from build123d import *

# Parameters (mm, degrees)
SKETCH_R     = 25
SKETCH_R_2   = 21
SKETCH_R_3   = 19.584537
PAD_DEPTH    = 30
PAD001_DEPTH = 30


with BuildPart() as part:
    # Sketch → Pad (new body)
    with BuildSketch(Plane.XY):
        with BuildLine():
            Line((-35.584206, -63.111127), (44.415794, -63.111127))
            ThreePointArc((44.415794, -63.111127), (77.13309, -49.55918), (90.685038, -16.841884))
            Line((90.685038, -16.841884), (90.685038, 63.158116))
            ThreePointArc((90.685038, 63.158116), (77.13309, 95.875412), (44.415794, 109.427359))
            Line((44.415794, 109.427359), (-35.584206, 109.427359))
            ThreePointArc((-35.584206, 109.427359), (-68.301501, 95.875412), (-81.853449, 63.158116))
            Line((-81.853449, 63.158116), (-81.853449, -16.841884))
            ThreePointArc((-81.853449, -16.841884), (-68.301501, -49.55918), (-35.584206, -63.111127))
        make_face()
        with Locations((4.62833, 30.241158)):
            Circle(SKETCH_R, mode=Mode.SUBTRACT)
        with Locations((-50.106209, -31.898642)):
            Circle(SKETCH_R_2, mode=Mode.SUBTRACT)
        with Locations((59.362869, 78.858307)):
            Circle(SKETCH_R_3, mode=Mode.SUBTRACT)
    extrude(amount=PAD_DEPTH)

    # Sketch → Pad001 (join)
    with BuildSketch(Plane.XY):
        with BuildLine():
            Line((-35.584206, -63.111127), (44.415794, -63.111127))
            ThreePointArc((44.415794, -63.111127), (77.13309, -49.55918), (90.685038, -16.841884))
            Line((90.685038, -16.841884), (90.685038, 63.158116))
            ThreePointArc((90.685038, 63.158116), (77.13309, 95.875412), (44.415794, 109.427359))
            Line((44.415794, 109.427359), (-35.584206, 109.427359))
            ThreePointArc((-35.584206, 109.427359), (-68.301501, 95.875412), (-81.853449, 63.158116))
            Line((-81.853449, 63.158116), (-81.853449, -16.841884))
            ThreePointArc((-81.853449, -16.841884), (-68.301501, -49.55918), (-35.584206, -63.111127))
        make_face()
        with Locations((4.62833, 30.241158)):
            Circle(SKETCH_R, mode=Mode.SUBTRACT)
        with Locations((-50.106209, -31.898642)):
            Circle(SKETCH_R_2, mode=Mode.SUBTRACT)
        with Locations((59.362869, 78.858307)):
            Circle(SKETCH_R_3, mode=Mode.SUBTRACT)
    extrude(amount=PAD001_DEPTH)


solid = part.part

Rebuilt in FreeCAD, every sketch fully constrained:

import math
import FreeCAD as App
import Part
import Sketcher

doc = App.newDocument("Part")
body = doc.addObject("PartDesign::Body", "Body")

# Sketch on XY plane
sketch1 = doc.addObject("Sketcher::SketchObject", "Sketch")
body.addObject(sketch1)
sketch1.AttachmentSupport = (doc.XY_Plane, [""])
sketch1.MapMode = "FlatFace"
sketch1.addGeometry([
    Part.LineSegment(App.Vector(-36, -63, 0), App.Vector(44, -63, 0)),  # 0
    Part.ArcOfCircle(Part.Circle(App.Vector(44, -17, 0), App.Vector(0, 0, 1), 46), math.radians(-90), math.radians(0)),  # 1
    Part.LineSegment(App.Vector(91, -17, 0), App.Vector(91, 63, 0)),  # 2
    Part.ArcOfCircle(Part.Circle(App.Vector(44, 63, 0), App.Vector(0, 0, 1), 46), math.radians(0), math.radians(90)),  # 3
    Part.LineSegment(App.Vector(44, 109, 0), App.Vector(-36, 109, 0)),  # 4
    Part.ArcOfCircle(Part.Circle(App.Vector(-36, 63, 0), App.Vector(0, 0, 1), 46), math.radians(90), math.radians(180)),  # 5
    Part.LineSegment(App.Vector(-82, 63, 0), App.Vector(-82, -17, 0)),  # 6
    Part.ArcOfCircle(Part.Circle(App.Vector(-36, -17, 0), App.Vector(0, 0, 1), 46), math.radians(180), math.radians(270)),  # 7
    Part.Circle(App.Vector(-50, -32, 0), App.Vector(0, 0, 1), 21),  # 8
    Part.Circle(App.Vector(5, 30, 0), App.Vector(0, 0, 1), 25),  # 9
    Part.Circle(App.Vector(59, 79, 0), App.Vector(0, 0, 1), 20),  # 10
], False)
sketch1.addConstraint([
    Sketcher.Constraint("Tangent", 0, 2, 1, 1),
    Sketcher.Constraint("Tangent", 1, 2, 2, 1),
    Sketcher.Constraint("Tangent", 2, 2, 3, 1),
    Sketcher.Constraint("Tangent", 3, 2, 4, 1),
    Sketcher.Constraint("Tangent", 4, 2, 5, 1),
    Sketcher.Constraint("Tangent", 5, 2, 6, 1),
    Sketcher.Constraint("Tangent", 6, 2, 7, 1),
    Sketcher.Constraint("Tangent", 7, 2, 0, 1),
    Sketcher.Constraint("Horizontal", 0),
    Sketcher.Constraint("Vertical", 2),
    Sketcher.Constraint("Horizontal", 4),
    Sketcher.Constraint("Vertical", 6),
    Sketcher.Constraint("Equal", 1, 3),
    Sketcher.Constraint("Equal", 3, 5),
    Sketcher.Constraint("Equal", 5, 7),
    Sketcher.Constraint("Equal", 4, 2),
    Sketcher.Constraint("Diameter", 8, 42.0),
    Sketcher.Constraint("Diameter", 9, 50.0),
    Sketcher.Constraint("DistanceX", 0, 1, 0, 2, 80.0),
    Sketcher.Constraint("Diameter", 10, 39.169074),
    Sketcher.Constraint("Radius", 1, 46.269243),
    Sketcher.Constraint("DistanceY", 8, 3, 9, 3, 62.1398),
    Sketcher.Constraint("DistanceY", 9, 3, 3, 2, 79.186201),
    Sketcher.Constraint("DistanceX", 8, 3, -1, 1, 50.106209),
    Sketcher.Constraint("DistanceY", 8, 3, -1, 1, 31.898642),
    Sketcher.Constraint("DistanceX", -1, 1, 9, 3, 4.62833),
    Sketcher.Constraint("DistanceX", -1, 1, 10, 3, 59.362869),
    Sketcher.Constraint("DistanceX", -1, 1, 1, 2, 90.685038),
    Sketcher.Constraint("DistanceY", 3, 3, 10, 3, 15.700191),
])
pad1 = doc.addObject("PartDesign::Pad", "Pad")
body.addObject(pad1)
pad1.Profile = sketch1
pad1.Length = 30

# Sketch on XY plane
sketch2 = doc.addObject("Sketcher::SketchObject", "Sketch001")
body.addObject(sketch2)
sketch2.AttachmentSupport = (doc.XY_Plane, [""])
sketch2.MapMode = "FlatFace"
sketch2.addGeometry([
    Part.LineSegment(App.Vector(-36, -63, 0), App.Vector(44, -63, 0)),  # 0
    Part.ArcOfCircle(Part.Circle(App.Vector(44, -17, 0), App.Vector(0, 0, 1), 46), math.radians(-90), math.radians(0)),  # 1
    Part.LineSegment(App.Vector(91, -17, 0), App.Vector(91, 63, 0)),  # 2
    Part.ArcOfCircle(Part.Circle(App.Vector(44, 63, 0), App.Vector(0, 0, 1), 46), math.radians(0), math.radians(90)),  # 3
    Part.LineSegment(App.Vector(44, 109, 0), App.Vector(-36, 109, 0)),  # 4
    Part.ArcOfCircle(Part.Circle(App.Vector(-36, 63, 0), App.Vector(0, 0, 1), 46), math.radians(90), math.radians(180)),  # 5
    Part.LineSegment(App.Vector(-82, 63, 0), App.Vector(-82, -17, 0)),  # 6
    Part.ArcOfCircle(Part.Circle(App.Vector(-36, -17, 0), App.Vector(0, 0, 1), 46), math.radians(180), math.radians(270)),  # 7
    Part.Circle(App.Vector(-50, -32, 0), App.Vector(0, 0, 1), 21),  # 8
    Part.Circle(App.Vector(5, 30, 0), App.Vector(0, 0, 1), 25),  # 9
    Part.Circle(App.Vector(59, 79, 0), App.Vector(0, 0, 1), 20),  # 10
], False)
sketch2.addConstraint([
    Sketcher.Constraint("Tangent", 0, 2, 1, 1),
    Sketcher.Constraint("Tangent", 1, 2, 2, 1),
    Sketcher.Constraint("Tangent", 2, 2, 3, 1),
    Sketcher.Constraint("Tangent", 3, 2, 4, 1),
    Sketcher.Constraint("Tangent", 4, 2, 5, 1),
    Sketcher.Constraint("Tangent", 5, 2, 6, 1),
    Sketcher.Constraint("Tangent", 6, 2, 7, 1),
    Sketcher.Constraint("Tangent", 7, 2, 0, 1),
    Sketcher.Constraint("Horizontal", 0),
    Sketcher.Constraint("Vertical", 2),
    Sketcher.Constraint("Horizontal", 4),
    Sketcher.Constraint("Vertical", 6),
    Sketcher.Constraint("Equal", 1, 3),
    Sketcher.Constraint("Equal", 3, 5),
    Sketcher.Constraint("Equal", 5, 7),
    Sketcher.Constraint("Equal", 4, 2),
    Sketcher.Constraint("Diameter", 8, 42.0),
    Sketcher.Constraint("Diameter", 9, 50.0),
    Sketcher.Constraint("DistanceX", 0, 1, 0, 2, 80.0),
    Sketcher.Constraint("Diameter", 10, 39.169074),
    Sketcher.Constraint("Radius", 1, 46.269243),
    Sketcher.Constraint("DistanceY", 8, 3, 9, 3, 62.1398),
    Sketcher.Constraint("DistanceY", 9, 3, 3, 2, 79.186201),
    Sketcher.Constraint("DistanceX", 8, 3, -1, 1, 50.106209),
    Sketcher.Constraint("DistanceY", 8, 3, -1, 1, 31.898642),
    Sketcher.Constraint("DistanceX", -1, 1, 9, 3, 4.62833),
    Sketcher.Constraint("DistanceX", -1, 1, 10, 3, 59.362869),
    Sketcher.Constraint("DistanceX", -1, 1, 1, 2, 90.685038),
    Sketcher.Constraint("DistanceY", 3, 3, 10, 3, 15.700191),
])
pad2 = doc.addObject("PartDesign::Pad", "Pad001")
body.addObject(pad2)
pad2.Profile = sketch2
pad2.Length = 30

doc.recompute()
